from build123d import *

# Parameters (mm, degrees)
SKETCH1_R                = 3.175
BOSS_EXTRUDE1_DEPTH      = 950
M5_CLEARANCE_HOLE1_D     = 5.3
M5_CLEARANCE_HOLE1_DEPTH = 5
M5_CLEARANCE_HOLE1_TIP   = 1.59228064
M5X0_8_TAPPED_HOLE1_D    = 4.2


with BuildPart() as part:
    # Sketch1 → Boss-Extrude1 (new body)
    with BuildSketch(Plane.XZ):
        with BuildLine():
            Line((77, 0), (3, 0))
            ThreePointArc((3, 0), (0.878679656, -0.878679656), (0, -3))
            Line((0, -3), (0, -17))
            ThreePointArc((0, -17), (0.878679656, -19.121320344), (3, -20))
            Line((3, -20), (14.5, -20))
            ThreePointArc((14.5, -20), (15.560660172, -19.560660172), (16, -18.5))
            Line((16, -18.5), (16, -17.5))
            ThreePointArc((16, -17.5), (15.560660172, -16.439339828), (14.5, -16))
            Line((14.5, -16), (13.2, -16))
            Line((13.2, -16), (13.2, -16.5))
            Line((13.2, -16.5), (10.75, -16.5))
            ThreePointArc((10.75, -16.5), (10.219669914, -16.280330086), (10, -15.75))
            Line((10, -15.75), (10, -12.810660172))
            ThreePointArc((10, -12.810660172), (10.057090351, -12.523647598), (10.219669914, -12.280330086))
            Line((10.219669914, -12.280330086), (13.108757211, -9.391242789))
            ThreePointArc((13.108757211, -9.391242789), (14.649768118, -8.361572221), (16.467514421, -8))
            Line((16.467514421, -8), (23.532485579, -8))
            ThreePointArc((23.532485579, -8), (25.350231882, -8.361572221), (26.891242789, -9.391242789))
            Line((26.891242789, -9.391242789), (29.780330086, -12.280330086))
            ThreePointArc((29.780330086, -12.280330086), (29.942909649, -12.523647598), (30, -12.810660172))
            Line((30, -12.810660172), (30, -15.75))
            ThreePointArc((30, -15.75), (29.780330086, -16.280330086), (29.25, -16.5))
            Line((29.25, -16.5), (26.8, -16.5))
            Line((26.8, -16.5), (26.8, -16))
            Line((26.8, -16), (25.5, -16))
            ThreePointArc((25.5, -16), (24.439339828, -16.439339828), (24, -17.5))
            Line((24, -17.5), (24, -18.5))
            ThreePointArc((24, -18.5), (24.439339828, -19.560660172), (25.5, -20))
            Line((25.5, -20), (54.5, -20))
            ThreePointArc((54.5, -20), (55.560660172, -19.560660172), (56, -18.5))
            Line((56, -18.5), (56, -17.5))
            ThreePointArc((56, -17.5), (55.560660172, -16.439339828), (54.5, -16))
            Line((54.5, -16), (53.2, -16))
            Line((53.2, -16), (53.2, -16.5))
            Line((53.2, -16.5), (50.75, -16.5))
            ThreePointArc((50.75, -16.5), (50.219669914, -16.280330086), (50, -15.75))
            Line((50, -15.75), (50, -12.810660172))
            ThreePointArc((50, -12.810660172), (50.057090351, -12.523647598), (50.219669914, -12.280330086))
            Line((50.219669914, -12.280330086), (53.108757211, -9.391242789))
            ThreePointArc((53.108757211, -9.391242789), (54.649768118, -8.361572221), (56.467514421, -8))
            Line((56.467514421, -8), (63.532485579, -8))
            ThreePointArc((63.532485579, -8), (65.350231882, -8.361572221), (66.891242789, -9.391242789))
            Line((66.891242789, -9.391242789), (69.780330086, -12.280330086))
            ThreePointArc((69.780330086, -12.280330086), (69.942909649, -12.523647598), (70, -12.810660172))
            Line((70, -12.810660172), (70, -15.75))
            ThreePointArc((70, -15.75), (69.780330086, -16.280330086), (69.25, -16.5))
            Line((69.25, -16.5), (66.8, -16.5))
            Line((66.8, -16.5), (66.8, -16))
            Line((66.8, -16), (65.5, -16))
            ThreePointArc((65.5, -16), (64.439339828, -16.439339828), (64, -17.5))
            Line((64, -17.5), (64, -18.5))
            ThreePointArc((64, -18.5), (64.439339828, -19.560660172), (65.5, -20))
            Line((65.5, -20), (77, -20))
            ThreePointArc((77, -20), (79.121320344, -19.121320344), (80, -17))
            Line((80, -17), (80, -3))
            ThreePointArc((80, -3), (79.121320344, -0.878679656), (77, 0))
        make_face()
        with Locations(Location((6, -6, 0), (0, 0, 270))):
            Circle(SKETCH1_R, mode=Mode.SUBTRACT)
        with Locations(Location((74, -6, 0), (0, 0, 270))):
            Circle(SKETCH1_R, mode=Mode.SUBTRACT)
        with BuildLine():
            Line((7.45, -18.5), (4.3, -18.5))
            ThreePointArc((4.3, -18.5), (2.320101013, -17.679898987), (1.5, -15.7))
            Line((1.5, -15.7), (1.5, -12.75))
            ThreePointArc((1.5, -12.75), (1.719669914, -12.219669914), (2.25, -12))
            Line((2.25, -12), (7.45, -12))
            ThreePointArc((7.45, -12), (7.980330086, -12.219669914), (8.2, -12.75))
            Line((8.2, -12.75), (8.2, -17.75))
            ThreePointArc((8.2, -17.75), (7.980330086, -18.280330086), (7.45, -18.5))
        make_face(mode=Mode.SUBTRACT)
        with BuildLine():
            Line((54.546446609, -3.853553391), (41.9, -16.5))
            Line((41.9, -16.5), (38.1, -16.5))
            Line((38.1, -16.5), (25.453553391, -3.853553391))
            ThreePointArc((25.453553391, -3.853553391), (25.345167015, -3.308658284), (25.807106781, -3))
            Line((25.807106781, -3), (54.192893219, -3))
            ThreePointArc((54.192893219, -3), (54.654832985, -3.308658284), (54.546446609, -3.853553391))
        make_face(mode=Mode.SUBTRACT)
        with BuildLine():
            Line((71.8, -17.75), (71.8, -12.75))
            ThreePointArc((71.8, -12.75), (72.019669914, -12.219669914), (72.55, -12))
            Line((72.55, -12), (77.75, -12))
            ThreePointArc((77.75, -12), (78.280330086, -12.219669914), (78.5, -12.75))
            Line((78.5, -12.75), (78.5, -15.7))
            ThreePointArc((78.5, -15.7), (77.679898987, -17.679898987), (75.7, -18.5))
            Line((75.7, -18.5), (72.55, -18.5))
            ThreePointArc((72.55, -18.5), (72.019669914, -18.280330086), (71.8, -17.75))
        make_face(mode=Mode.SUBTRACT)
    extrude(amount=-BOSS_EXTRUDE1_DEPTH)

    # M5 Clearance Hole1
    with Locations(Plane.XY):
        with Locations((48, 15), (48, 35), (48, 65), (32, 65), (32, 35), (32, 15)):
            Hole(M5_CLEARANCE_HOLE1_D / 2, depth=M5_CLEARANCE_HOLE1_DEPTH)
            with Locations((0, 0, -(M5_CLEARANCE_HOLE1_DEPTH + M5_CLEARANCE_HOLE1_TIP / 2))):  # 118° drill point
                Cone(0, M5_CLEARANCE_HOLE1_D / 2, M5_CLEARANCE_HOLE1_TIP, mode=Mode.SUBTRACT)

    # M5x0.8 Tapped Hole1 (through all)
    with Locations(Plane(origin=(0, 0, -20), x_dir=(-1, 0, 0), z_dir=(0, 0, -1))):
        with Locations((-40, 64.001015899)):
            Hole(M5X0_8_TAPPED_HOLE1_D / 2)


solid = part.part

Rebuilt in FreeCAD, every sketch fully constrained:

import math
import FreeCAD as App
import Part
import Sketcher

V = App.Vector

doc = App.newDocument("Part")
params = doc.addObject("Spreadsheet::Sheet", "Params")
for row, (alias, value) in enumerate([
    ("sketch1_radius", "3 mm"),
    ("sketch1_radius2", "1.5 mm"),
    ("sketch1_radius3", "2.8 mm"),
    ("sketch1_radius4", "0.5 mm"),
    ("sketch1_diameter", "6.35 mm"),
    ("pad1_length", "950 mm"),
    ("sketch2_diameter", "5.3 mm"),
    ("hole_diameter", "5.3 mm"),
    ("hole_depth", "5 mm"),
    ("sketch3_diameter", "4.2 mm"),
    ("hole2_diameter", "4.2 mm"),
], start=1):
    params.set(f"A{row}", alias)
    params.set(f"B{row}", "=" + value)
    params.setAlias(f"B{row}", alias)

body = doc.addObject("PartDesign::Body", "Body")

sketch1 = body.newObject("Sketcher::SketchObject", "Sketch")
sketch1.AttachmentSupport = (doc.getObject("XZ_Plane"), [""])
sketch1.MapMode = "FlatFace"
sketch1.addGeometry([
    Part.LineSegment(V(77, 0, 0), V(3, 0, 0)),
    Part.ArcOfCircle(Part.Circle(V(3, -3, 0), V(0, 0, 1), 3), math.radians(90), math.radians(180)),
    Part.LineSegment(V(0, -3, 0), V(0, -17, 0)),
    Part.ArcOfCircle(Part.Circle(V(3, -17, 0), V(0, 0, 1), 3), math.radians(180), math.radians(270)),
    Part.LineSegment(V(3, -20, 0), V(14.5, -20, 0)),
    Part.ArcOfCircle(Part.Circle(V(14.5, -18.5, 0), V(0, 0, 1), 1.5), math.radians(-90), math.radians(0)),
    Part.LineSegment(V(16, -18.5, 0), V(16, -17.5, 0)),
    Part.ArcOfCircle(Part.Circle(V(14.5, -17.5, 0), V(0, 0, 1), 1.5), math.radians(0), math.radians(90)),
    Part.LineSegment(V(14.5, -16, 0), V(13.2, -16, 0)),
    Part.LineSegment(V(13.2, -16, 0), V(13.2, -16.5, 0)),
    Part.LineSegment(V(13.2, -16.5, 0), V(10.8, -16.5, 0)),
    Part.ArcOfCircle(Part.Circle(V(10.8, -15.8, 0), V(0, 0, 1), 0.8), math.radians(180), math.radians(270)),
    Part.LineSegment(V(10, -15.8, 0), V(10, -12.8, 0)),
    Part.ArcOfCircle(Part.Circle(V(10.8, -12.8, 0), V(0, 0, 1), 0.8), math.radians(135), math.radians(180)),
    Part.LineSegment(V(10.2, -12.3, 0), V(13.1, -9.4, 0)),
    Part.ArcOfCircle(Part.Circle(V(16.5, -12.8, 0), V(0, 0, 1), 4.8), math.radians(90), math.radians(135)),
    Part.LineSegment(V(16.5, -8, 0), V(23.5, -8, 0)),
    Part.ArcOfCircle(Part.Circle(V(23.5, -12.8, 0), V(0, 0, 1), 4.8), math.radians(45), math.radians(90)),
    Part.LineSegment(V(26.9, -9.4, 0), V(29.8, -12.3, 0)),
    Part.ArcOfCircle(Part.Circle(V(29.2, -12.8, 0), V(0, 0, 1), 0.8), math.radians(0), math.radians(45)),
    Part.LineSegment(V(30, -12.8, 0), V(30, -15.8, 0)),
    Part.ArcOfCircle(Part.Circle(V(29.2, -15.8, 0), V(0, 0, 1), 0.8), math.radians(-90), math.radians(0)),
    Part.LineSegment(V(29.2, -16.5, 0), V(26.8, -16.5, 0)),
    Part.LineSegment(V(26.8, -16.5, 0), V(26.8, -16, 0)),
    Part.LineSegment(V(26.8, -16, 0), V(25.5, -16, 0)),
    Part.ArcOfCircle(Part.Circle(V(25.5, -17.5, 0), V(0, 0, 1), 1.5), math.radians(90), math.radians(180)),
    Part.LineSegment(V(24, -17.5, 0), V(24, -18.5, 0)),
    Part.ArcOfCircle(Part.Circle(V(25.5, -18.5, 0), V(0, 0, 1), 1.5), math.radians(180), math.radians(270)),
    Part.LineSegment(V(25.5, -20, 0), V(54.5, -20, 0)),
    Part.ArcOfCircle(Part.Circle(V(54.5, -18.5, 0), V(0, 0, 1), 1.5), math.radians(-90), math.radians(0)),
    Part.LineSegment(V(56, -18.5, 0), V(56, -17.5, 0)),
    Part.ArcOfCircle(Part.Circle(V(54.5, -17.5, 0), V(0, 0, 1), 1.5), math.radians(0), math.radians(90)),
    Part.LineSegment(V(54.5, -16, 0), V(53.2, -16, 0)),
    Part.LineSegment(V(53.2, -16, 0), V(53.2, -16.5, 0)),
    Part.LineSegment(V(53.2, -16.5, 0), V(50.8, -16.5, 0)),
    Part.ArcOfCircle(Part.Circle(V(50.8, -15.8, 0), V(0, 0, 1), 0.8), math.radians(180), math.radians(270)),
    Part.LineSegment(V(50, -15.8, 0), V(50, -12.8, 0)),
    Part.ArcOfCircle(Part.Circle(V(50.8, -12.8, 0), V(0, 0, 1), 0.8), math.radians(135), math.radians(180)),
    Part.LineSegment(V(50.2, -12.3, 0), V(53.1, -9.4, 0)),
    Part.ArcOfCircle(Part.Circle(V(56.5, -12.8, 0), V(0, 0, 1), 4.8), math.radians(90), math.radians(135)),
    Part.LineSegment(V(56.5, -8, 0), V(63.5, -8, 0)),
    Part.ArcOfCircle(Part.Circle(V(63.5, -12.8, 0), V(0, 0, 1), 4.8), math.radians(45), math.radians(90)),
    Part.LineSegment(V(66.9, -9.4, 0), V(69.8, -12.3, 0)),
    Part.ArcOfCircle(Part.Circle(V(69.2, -12.8, 0), V(0, 0, 1), 0.8), math.radians(0), math.radians(45)),
    Part.LineSegment(V(70, -12.8, 0), V(70, -15.8, 0)),
    Part.ArcOfCircle(Part.Circle(V(69.2, -15.8, 0), V(0, 0, 1), 0.8), math.radians(-90), math.radians(0)),
    Part.LineSegment(V(69.2, -16.5, 0), V(66.8, -16.5, 0)),
    Part.LineSegment(V(66.8, -16.5, 0), V(66.8, -16, 0)),
    Part.LineSegment(V(66.8, -16, 0), V(65.5, -16, 0)),
    Part.ArcOfCircle(Part.Circle(V(65.5, -17.5, 0), V(0, 0, 1), 1.5), math.radians(90), math.radians(180)),
    Part.LineSegment(V(64, -17.5, 0), V(64, -18.5, 0)),
    Part.ArcOfCircle(Part.Circle(V(65.5, -18.5, 0), V(0, 0, 1), 1.5), math.radians(180), math.radians(270)),
    Part.LineSegment(V(65.5, -20, 0), V(77, -20, 0)),
    Part.ArcOfCircle(Part.Circle(V(77, -17, 0), V(0, 0, 1), 3), math.radians(-90), math.radians(0)),
    Part.LineSegment(V(80, -17, 0), V(80, -3, 0)),
    Part.ArcOfCircle(Part.Circle(V(77, -3, 0), V(0, 0, 1), 3), math.radians(0), math.radians(90)),
    Part.ArcOfCircle(Part.Circle(V(7.5, -17.8, 0), V(0, 0, 1), 0.8), math.radians(-90), math.radians(0)),
    Part.LineSegment(V(7.5, -18.5, 0), V(4.3, -18.5, 0)),
    Part.ArcOfCircle(Part.Circle(V(4.3, -15.7, 0), V(0, 0, 1), 2.8), math.radians(-180), math.radians(-90)),
    Part.LineSegment(V(1.5, -15.7, 0), V(1.5, -12.8, 0)),
    Part.ArcOfCircle(Part.Circle(V(2.2, -12.8, 0), V(0, 0, 1), 0.8), math.radians(90), math.radians(180)),
    Part.LineSegment(V(2.2, -12, 0), V(7.5, -12, 0)),
    Part.ArcOfCircle(Part.Circle(V(7.5, -12.8, 0), V(0, 0, 1), 0.8), math.radians(0), math.radians(90)),
    Part.LineSegment(V(8.2, -12.8, 0), V(8.2, -17.8, 0)),
    Part.ArcOfCircle(Part.Circle(V(72.5, -17.8, 0), V(0, 0, 1), 0.8), math.radians(180), math.radians(270)),
    Part.LineSegment(V(71.8, -17.8, 0), V(71.8, -12.8, 0)),
    Part.ArcOfCircle(Part.Circle(V(72.5, -12.8, 0), V(0, 0, 1), 0.8), math.radians(90), math.radians(180)),
    Part.LineSegment(V(72.5, -12, 0), V(77.8, -12, 0)),
    Part.ArcOfCircle(Part.Circle(V(77.8, -12.8, 0), V(0, 0, 1), 0.8), math.radians(0), math.radians(90)),
    Part.LineSegment(V(78.5, -12.8, 0), V(78.5, -15.7, 0)),
    Part.ArcOfCircle(Part.Circle(V(75.7, -15.7, 0), V(0, 0, 1), 2.8), math.radians(-90), math.radians(0)),
    Part.LineSegment(V(75.7, -18.5, 0), V(72.5, -18.5, 0)),
    Part.Circle(V(6, -6, 0), V(0, 0, 1), 3.2),
    Part.ArcOfCircle(Part.Circle(V(54.2, -3.5, 0), V(0, 0, 1), 0.5), math.radians(-45), math.radians(90)),
    Part.LineSegment(V(54.5, -3.9, 0), V(41.9, -16.5, 0)),
    Part.LineSegment(V(41.9, -16.5, 0), V(38.1, -16.5, 0)),
    Part.LineSegment(V(38.1, -16.5, 0), V(25.5, -3.9, 0)),
    Part.ArcOfCircle(Part.Circle(V(25.8, -3.5, 0), V(0, 0, 1), 0.5), math.radians(90), math.radians(225)),
    Part.LineSegment(V(25.8, -3, 0), V(54.2, -3, 0)),
    Part.Circle(V(74, -6, 0), V(0, 0, 1), 3.2),
], False)
sketch1.addConstraint([
    Sketcher.Constraint("Tangent", 0, 2, 1, 1),
    Sketcher.Constraint("Tangent", 1, 2, 2, 1),
    Sketcher.Constraint("Tangent", 2, 2, 3, 1),
    Sketcher.Constraint("Tangent", 3, 2, 4, 1),
    Sketcher.Constraint("Tangent", 4, 2, 5, 1),
    Sketcher.Constraint("Tangent", 5, 2, 6, 1),
    Sketcher.Constraint("Tangent", 6, 2, 7, 1),
    Sketcher.Constraint("Tangent", 7, 2, 8, 1),
    Sketcher.Constraint("Coincident", 8, 2, 9, 1),
    Sketcher.Constraint("Coincident", 9, 2, 10, 1),
    Sketcher.Constraint("Tangent", 10, 2, 11, 2),
    Sketcher.Constraint("Tangent", 11, 1, 12, 1),
    Sketcher.Constraint("Tangent", 12, 2, 13, 2),
    Sketcher.Constraint("Tangent", 13, 1, 14, 1),
    Sketcher.Constraint("Tangent", 14, 2, 15, 2),
    Sketcher.Constraint("Tangent", 15, 1, 16, 1),
    Sketcher.Constraint("Tangent", 16, 2, 17, 2),
    Sketcher.Constraint("Tangent", 17, 1, 18, 1),
    Sketcher.Constraint("Tangent", 18, 2, 19, 2),
    Sketcher.Constraint("Tangent", 19, 1, 20, 1),
    Sketcher.Constraint("Tangent", 20, 2, 21, 2),
    Sketcher.Constraint("Tangent", 21, 1, 22, 1),
    Sketcher.Constraint("Coincident", 22, 2, 23, 1),
    Sketcher.Constraint("Coincident", 23, 2, 24, 1),
    Sketcher.Constraint("Tangent", 24, 2, 25, 1),
    Sketcher.Constraint("Tangent", 25, 2, 26, 1),
    Sketcher.Constraint("Tangent", 26, 2, 27, 1),
    Sketcher.Constraint("Tangent", 27, 2, 28, 1),
    Sketcher.Constraint("Tangent", 28, 2, 29, 1),
    Sketcher.Constraint("Tangent", 29, 2, 30, 1),
    Sketcher.Constraint("Tangent", 30, 2, 31, 1),
    Sketcher.Constraint("Tangent", 31, 2, 32, 1),
    Sketcher.Constraint("Coincident", 32, 2, 33, 1),
    Sketcher.Constraint("Coincident", 33, 2, 34, 1),
    Sketcher.Constraint("Tangent", 34, 2, 35, 2),
    Sketcher.Constraint("Tangent", 35, 1, 36, 1),
    Sketcher.Constraint("Tangent", 36, 2, 37, 2),
    Sketcher.Constraint("Tangent", 37, 1, 38, 1),
    Sketcher.Constraint("Tangent", 38, 2, 39, 2),
    Sketcher.Constraint("Tangent", 39, 1, 40, 1),
    Sketcher.Constraint("Tangent", 40, 2, 41, 2),
    Sketcher.Constraint("Tangent", 41, 1, 42, 1),
    Sketcher.Constraint("Tangent", 42, 2, 43, 2),
    Sketcher.Constraint("Tangent", 43, 1, 44, 1),
    Sketcher.Constraint("Tangent", 44, 2, 45, 2),
    Sketcher.Constraint("Tangent", 45, 1, 46, 1),
    Sketcher.Constraint("Coincident", 46, 2, 47, 1),
    Sketcher.Constraint("Coincident", 47, 2, 48, 1),
    Sketcher.Constraint("Tangent", 48, 2, 49, 1),
    Sketcher.Constraint("Tangent", 49, 2, 50, 1),
    Sketcher.Constraint("Tangent", 50, 2, 51, 1),
    Sketcher.Constraint("Tangent", 51, 2, 52, 1),
    Sketcher.Constraint("Tangent", 52, 2, 53, 1),
    Sketcher.Constraint("Tangent", 53, 2, 54, 1),
    Sketcher.Constraint("Tangent", 54, 2, 55, 1),
    Sketcher.Constraint("Tangent", 55, 2, 0, 1),
    Sketcher.Constraint("Tangent", 56, 1, 57, 1),
    Sketcher.Constraint("Tangent", 57, 2, 58, 2),
    Sketcher.Constraint("Tangent", 58, 1, 59, 1),
    Sketcher.Constraint("Tangent", 59, 2, 60, 2),
    Sketcher.Constraint("Tangent", 60, 1, 61, 1),
    Sketcher.Constraint("Tangent", 61, 2, 62, 2),
    Sketcher.Constraint("Tangent", 62, 1, 63, 1),
    Sketcher.Constraint("Tangent", 63, 2, 56, 2),
    Sketcher.Constraint("Tangent", 64, 1, 65, 1),
    Sketcher.Constraint("Tangent", 65, 2, 66, 2),
    Sketcher.Constraint("Tangent", 66, 1, 67, 1),
    Sketcher.Constraint("Tangent", 67, 2, 68, 2),
    Sketcher.Constraint("Tangent", 68, 1, 69, 1),
    Sketcher.Constraint("Tangent", 69, 2, 70, 2),
    Sketcher.Constraint("Tangent", 70, 1, 71, 1),
    Sketcher.Constraint("Tangent", 71, 2, 64, 2),
    Sketcher.Constraint("Tangent", 73, 1, 74, 1),
    Sketcher.Constraint("Coincident", 74, 2, 75, 1),
    Sketcher.Constraint("Coincident", 75, 2, 76, 1),
    Sketcher.Constraint("Tangent", 76, 2, 77, 2),
    Sketcher.Constraint("Tangent", 77, 1, 78, 1),
    Sketcher.Constraint("Tangent", 78, 2, 73, 2),
    Sketcher.Constraint("Horizontal", 0),
    Sketcher.Constraint("Vertical", 2),
    Sketcher.Constraint("Horizontal", 4),
    Sketcher.Constraint("Vertical", 6),
    Sketcher.Constraint("Horizontal", 8),
    Sketcher.Constraint("Vertical", 9),
    Sketcher.Constraint("Horizontal", 10),
    Sketcher.Constraint("Vertical", 12),
    Sketcher.Constraint("Horizontal", 16),
    Sketcher.Constraint("Vertical", 20),
    Sketcher.Constraint("Horizontal", 22),
    Sketcher.Constraint("Vertical", 23),
    Sketcher.Constraint("Horizontal", 24),
    Sketcher.Constraint("Vertical", 26),
    Sketcher.Constraint("Horizontal", 28),
    Sketcher.Constraint("Vertical", 30),
    Sketcher.Constraint("Horizontal", 32),
    Sketcher.Constraint("Vertical", 33),
    Sketcher.Constraint("Horizontal", 34),
    Sketcher.Constraint("Vertical", 36),
    Sketcher.Constraint("Horizontal", 40),
    Sketcher.Constraint("Vertical", 44),
    Sketcher.Constraint("Horizontal", 46),
    Sketcher.Constraint("Vertical", 47),
    Sketcher.Constraint("Horizontal", 48),
    Sketcher.Constraint("Vertical", 50),
    Sketcher.Constraint("Horizontal", 52),
    Sketcher.Constraint("Vertical", 54),
    Sketcher.Constraint("Horizontal", 57),
    Sketcher.Constraint("Vertical", 59),
    Sketcher.Constraint("Horizontal", 61),
    Sketcher.Constraint("Vertical", 63),
    Sketcher.Constraint("Vertical", 65),
    Sketcher.Constraint("Horizontal", 67),
    Sketcher.Constraint("Vertical", 69),
    Sketcher.Constraint("Horizontal", 71),
    Sketcher.Constraint("Horizontal", 75),
    Sketcher.Constraint("Horizontal", 78),
    Sketcher.Constraint("Equal", 1, 3),
    Sketcher.Constraint("Equal", 5, 7),
    Sketcher.Constraint("Equal", 11, 13),
    Sketcher.Constraint("Equal", 15, 17),
    Sketcher.Constraint("Equal", 13, 19),
    Sketcher.Constraint("Equal", 19, 21),
    Sketcher.Constraint("Equal", 7, 25),
    Sketcher.Constraint("Equal", 25, 27),
    Sketcher.Constraint("Equal", 27, 29),
    Sketcher.Constraint("Equal", 29, 31),
    Sketcher.Constraint("Equal", 21, 35),
    Sketcher.Constraint("Equal", 35, 37),
    Sketcher.Constraint("Equal", 17, 39),
    Sketcher.Constraint("Equal", 39, 41),
    Sketcher.Constraint("Equal", 37, 43),
    Sketcher.Constraint("Equal", 43, 45),
    Sketcher.Constraint("Equal", 31, 49),
    Sketcher.Constraint("Equal", 49, 51),
    Sketcher.Constraint("Equal", 3, 53),
    Sketcher.Constraint("Equal", 53, 55),
    Sketcher.Constraint("Equal", 45, 56),
    Sketcher.Constraint("Equal", 56, 60),
    Sketcher.Constraint("Equal", 60, 62),
    Sketcher.Constraint("Equal", 62, 64),
    Sketcher.Constraint("Equal", 64, 66),
    Sketcher.Constraint("Equal", 66, 68),
    Sketcher.Constraint("Equal", 58, 70),
    Sketcher.Constraint("Equal", 73, 77),
    Sketcher.Constraint("Equal", 72, 79),
    Sketcher.Constraint("PointOnObject", 0, 2, -1),
    Sketcher.Constraint("PointOnObject", 1, 2, -2),
    Sketcher.Constraint("Perpendicular", 14, 18),
    Sketcher.Constraint("Perpendicular", 18, 38),
    Sketcher.Constraint("Perpendicular", 38, 42),
    Sketcher.Constraint("Perpendicular", 42, 74),
    Sketcher.Constraint("Perpendicular", 74, 76),
    Sketcher.Constraint("Horizontal", 13, 3, 19, 3),
    Sketcher.Constraint("Horizontal", 11, 3, 21, 3),
    Sketcher.Constraint("Horizontal", 7, 3, 25, 3),
    Sketcher.Constraint("Horizontal", 5, 3, 27, 3),
    Sketcher.Constraint("Horizontal", 25, 3, 31, 3),
    Sketcher.Constraint("Horizontal", 21, 3, 35, 3),
    Sketcher.Constraint("Horizontal", 19, 3, 37, 3),
    Sketcher.Constraint("Horizontal", 17, 3, 39, 3),
    Sketcher.Constraint("Horizontal", 37, 3, 43, 3),
    Sketcher.Constraint("Horizontal", 35, 3, 45, 3),
    Sketcher.Constraint("Horizontal", 31, 3, 49, 3),
    Sketcher.Constraint("Horizontal", 29, 3, 51, 3),
    Sketcher.Constraint("Horizontal", 41, 3, 60, 3),
    Sketcher.Constraint("Horizontal", 56, 3, 64, 3),
    Sketcher.Constraint("Horizontal", 62, 3, 66, 3),
    Sketcher.Constraint("Horizontal", 72, 3, 79, 3),
    Sketcher.Constraint("Horizontal", 14, 2, 17, 1),
    Sketcher.Constraint("Horizontal", 50, 2, 56, 1),
    Sketcher.Constraint("Horizontal", 46, 2, 74, 2),
    Sketcher.Constraint("Horizontal", 54, 2, 77, 1),
    Sketcher.Constraint("Equal", 10, 22),
    Sketcher.Constraint("Equal", 8, 24),
    Sketcher.Constraint("Equal", 24, 32),
    Sketcher.Constraint("Equal", 22, 34),
    Sketcher.Constraint("Equal", 16, 40),
    Sketcher.Constraint("Equal", 34, 46),
    Sketcher.Constraint("Equal", 32, 48),
    Sketcher.Constraint("Equal", 4, 52),
    Sketcher.Constraint("Equal", 61, 67),
    Sketcher.Constraint("Radius", 1, 3.0),
    Sketcher.Constraint("Radius", 5, 1.5),
    Sketcher.Constraint("Radius", 58, 2.8),
    Sketcher.Constraint("Radius", 73, 0.5),
    Sketcher.Constraint("Diameter", 72, 6.35),
    Sketcher.Constraint("DistanceX", 0, 2, 0, 1, 74.0),
    Sketcher.Constraint("DistanceX", 28, 1, 28, 2, 29.0),
    Sketcher.Constraint("DistanceY", 2, 2, 2, 1, 14.0),
    Sketcher.Constraint("DistanceY", 6, 1, 6, 2, 1.0),
    Sketcher.Constraint("DistanceY", 63, 2, 63, 1, 5.0),
    Sketcher.Constraint("Radius", 11, 0.75),
    Sketcher.Constraint("Radius", 15, 4.75),
    Sketcher.Constraint("DistanceX", 4, 1, 4, 2, 11.5),
    Sketcher.Constraint("DistanceX", 8, 2, 8, 1, 1.3),
    Sketcher.Constraint("DistanceX", 61, 1, 61, 2, 5.2),
    Sketcher.Constraint("DistanceX", 75, 2, 75, 1, 3.8),
    Sketcher.Constraint("DistanceY", 9, 2, 9, 1, 0.5),
    Sketcher.Constraint("DistanceX", -1, 1, 72, 3, 6.0),
    Sketcher.Constraint("DistanceY", 72, 3, -1, 1, 6.0),
    Sketcher.Constraint("DistanceX", -1, 1, 79, 3, 74.0),
    Sketcher.Constraint("DistanceX", -1, 1, 11, 1, 10.0),
    Sketcher.Constraint("DistanceX", -1, 1, 58, 3, 4.3),
    Sketcher.Constraint("DistanceX", -1, 1, 70, 3, 75.7),
    Sketcher.Constraint("DistanceX", -1, 1, 74, 2, 41.9),
    Sketcher.Constraint("DistanceX", 16, 1, 16, 2, 7.064971),
])
sketch1.setExpression("Constraints[181]", "Params.sketch1_radius")
sketch1.setExpression("Constraints[182]", "Params.sketch1_radius2")
sketch1.setExpression("Constraints[183]", "Params.sketch1_radius3")
sketch1.setExpression("Constraints[184]", "Params.sketch1_radius4")
sketch1.setExpression("Constraints[185]", "Params.sketch1_diameter")
pad1 = body.newObject("PartDesign::Pad", "Pad")
pad1.Profile = sketch1
pad1.setExpression("Length", "Params.pad1_length")
pad1.Reversed = True

sketch2 = body.newObject("Sketcher::SketchObject", "Sketch001")
sketch2.AttachmentSupport = (doc.getObject("XY_Plane"), [""])
sketch2.MapMode = "FlatFace"
sketch2.addGeometry([
    Part.Circle(V(48, 15, 0), V(0, 0, 1), 2.6),
    Part.Circle(V(48, 35, 0), V(0, 0, 1), 2.6),
    Part.Circle(V(48, 65, 0), V(0, 0, 1), 2.6),
    Part.Circle(V(32, 65, 0), V(0, 0, 1), 2.6),
    Part.Circle(V(32, 35, 0), V(0, 0, 1), 2.6),
    Part.Circle(V(32, 15, 0), V(0, 0, 1), 2.6),
], False)
sketch2.addConstraint([
    Sketcher.Constraint("Equal", 0, 1),
    Sketcher.Constraint("Equal", 1, 2),
    Sketcher.Constraint("Equal", 2, 3),
    Sketcher.Constraint("Equal", 3, 4),
    Sketcher.Constraint("Equal", 4, 5),
    Sketcher.Constraint("Horizontal", 2, 3, 3, 3),
    Sketcher.Constraint("Horizontal", 1, 3, 4, 3),
    Sketcher.Constraint("Horizontal", 0, 3, 5, 3),
    Sketcher.Constraint("Vertical", 0, 3, 1, 3),
    Sketcher.Constraint("Vertical", 1, 3, 2, 3),
    Sketcher.Constraint("Vertical", 3, 3, 4, 3),
    Sketcher.Constraint("Vertical", 4, 3, 5, 3),
    Sketcher.Constraint("Diameter", 0, 5.3),
    Sketcher.Constraint("DistanceX", -1, 1, 0, 3, 48.0),
    Sketcher.Constraint("DistanceY", -1, 1, 0, 3, 15.0),
    Sketcher.Constraint("DistanceY", -1, 1, 1, 3, 35.0),
    Sketcher.Constraint("DistanceY", -1, 1, 2, 3, 65.0),
    Sketcher.Constraint("DistanceX", -1, 1, 3, 3, 32.0),
])
sketch2.setExpression("Constraints[12]", "Params.sketch2_diameter")
doc.recompute()
hole = body.newObject("PartDesign::Hole", "Hole")
hole.Profile = sketch2
hole.ThreadType = "None"
hole.setExpression("Diameter", "Params.hole_diameter")
hole.DepthType = "Dimension"
hole.setExpression("Depth", "Params.hole_depth")
hole.DrillPoint = "Angled"
hole.DrillPointAngle = 118

sketch3 = body.newObject("Sketcher::SketchObject", "Sketch002")
sketch3.AttachmentSupport = (doc.getObject("XY_Plane"), [""])
sketch3.MapMode = "FlatFace"
sketch3.AttachmentOffset = App.Placement(V(0, 0, -20), App.Rotation())
sketch3.addGeometry(Part.Circle(V(40, 64, 0), V(0, 0, 1), 2.1), False)
sketch3.addConstraint([
    Sketcher.Constraint("Diameter", 0, 4.2),
    Sketcher.Constraint("DistanceX", -1, 1, 0, 3, 40.0),
    Sketcher.Constraint("DistanceY", -1, 1, 0, 3, 64.001016),
])
sketch3.setExpression("Constraints[0]", "Params.sketch3_diameter")
doc.recompute()
hole2 = body.newObject("PartDesign::Hole", "Hole001")
hole2.Profile = sketch3
hole2.ThreadType = "None"
hole2.setExpression("Diameter", "Params.hole2_diameter")
hole2.DepthType = "ThroughAll"
hole2.Reversed = True

doc.recompute()
